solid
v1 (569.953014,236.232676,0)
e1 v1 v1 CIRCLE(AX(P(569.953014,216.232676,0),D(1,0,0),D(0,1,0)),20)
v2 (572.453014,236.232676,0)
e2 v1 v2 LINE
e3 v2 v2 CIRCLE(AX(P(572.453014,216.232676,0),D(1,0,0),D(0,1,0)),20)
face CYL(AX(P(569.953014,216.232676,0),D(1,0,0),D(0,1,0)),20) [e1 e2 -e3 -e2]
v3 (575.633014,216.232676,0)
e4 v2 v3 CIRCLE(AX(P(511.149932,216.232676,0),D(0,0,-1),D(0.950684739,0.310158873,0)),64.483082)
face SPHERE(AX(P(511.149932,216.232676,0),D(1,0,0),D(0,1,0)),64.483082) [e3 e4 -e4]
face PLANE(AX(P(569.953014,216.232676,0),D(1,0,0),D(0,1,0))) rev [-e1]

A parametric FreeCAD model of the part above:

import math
import FreeCAD as App
import Part
import Sketcher
from FreeCAD import Vector
Q = App.Units.Quantity

doc = App.newDocument("Part")
body = doc.addObject("PartDesign::Body", "Body")

sketch1 = doc.addObject("Sketcher::SketchObject", "Sketch")
body.addObject(sketch1)
sketch1.AttachmentSupport = (doc.XY_Plane, [""])
sketch1.MapMode = "FlatFace"
sketch1.addGeometry([
    Part.LineSegment(Vector(569.953014, 236.232676, 0), Vector(569.953014, 216.232676, 0)),
    Part.LineSegment(Vector(569.953014, 216.232676, 0), Vector(575.633014, 216.232676, 0)),
    Part.ArcOfCircle(Part.Circle(Vector(511.149932, 216.232676, 0), Vector(0, 0, 1), 64.483082), math.radians(0), math.radians(18.068805)),
    Part.LineSegment(Vector(572.453014, 236.232676, 0), Vector(569.953014, 236.232676, 0)),
], False)
sketch1.addGeometry(Part.LineSegment(Vector(511.149932, 216.232676, 0), Vector(575.633014, 216.232676, 0)), True)
sketch1.addConstraint([
    Sketcher.Constraint("Coincident", 0, 2, 1, 1),
    Sketcher.Constraint("Coincident", 1, 2, 2, 1),
    Sketcher.Constraint("Coincident", 2, 2, 3, 1),
    Sketcher.Constraint("Coincident", 3, 2, 0, 1),
    Sketcher.Constraint("Vertical", 0),
    Sketcher.Constraint("Horizontal", 1),
    Sketcher.Constraint("Horizontal", 3),
    Sketcher.Constraint("Horizontal", 4),
    Sketcher.Constraint("Coincident", 4, 1, 2, 3),
    Sketcher.Constraint("Coincident", 4, 2, 1, 2),
    Sketcher.Constraint("DistanceY", 0, 2, 0, 1, Q("20 mm")),
    Sketcher.Constraint("DistanceX", 3, 2, 3, 1, Q("2.5 mm")),
    Sketcher.Constraint("DistanceX", 1, 1, 1, 2, Q("5.68 mm")),
    Sketcher.Constraint("DistanceX", -1, 1, 2, 3, Q("511.149932 mm")),
    Sketcher.Constraint("DistanceY", -1, 1, 2, 3, Q("216.232676 mm")),
])
revolution = doc.addObject("PartDesign::Revolution", "Revolution")
body.addObject(revolution)
revolution.Profile = sketch1
revolution.ReferenceAxis = (sketch1, ["Axis0"])
revolution.Angle = 360

doc.recompute()
